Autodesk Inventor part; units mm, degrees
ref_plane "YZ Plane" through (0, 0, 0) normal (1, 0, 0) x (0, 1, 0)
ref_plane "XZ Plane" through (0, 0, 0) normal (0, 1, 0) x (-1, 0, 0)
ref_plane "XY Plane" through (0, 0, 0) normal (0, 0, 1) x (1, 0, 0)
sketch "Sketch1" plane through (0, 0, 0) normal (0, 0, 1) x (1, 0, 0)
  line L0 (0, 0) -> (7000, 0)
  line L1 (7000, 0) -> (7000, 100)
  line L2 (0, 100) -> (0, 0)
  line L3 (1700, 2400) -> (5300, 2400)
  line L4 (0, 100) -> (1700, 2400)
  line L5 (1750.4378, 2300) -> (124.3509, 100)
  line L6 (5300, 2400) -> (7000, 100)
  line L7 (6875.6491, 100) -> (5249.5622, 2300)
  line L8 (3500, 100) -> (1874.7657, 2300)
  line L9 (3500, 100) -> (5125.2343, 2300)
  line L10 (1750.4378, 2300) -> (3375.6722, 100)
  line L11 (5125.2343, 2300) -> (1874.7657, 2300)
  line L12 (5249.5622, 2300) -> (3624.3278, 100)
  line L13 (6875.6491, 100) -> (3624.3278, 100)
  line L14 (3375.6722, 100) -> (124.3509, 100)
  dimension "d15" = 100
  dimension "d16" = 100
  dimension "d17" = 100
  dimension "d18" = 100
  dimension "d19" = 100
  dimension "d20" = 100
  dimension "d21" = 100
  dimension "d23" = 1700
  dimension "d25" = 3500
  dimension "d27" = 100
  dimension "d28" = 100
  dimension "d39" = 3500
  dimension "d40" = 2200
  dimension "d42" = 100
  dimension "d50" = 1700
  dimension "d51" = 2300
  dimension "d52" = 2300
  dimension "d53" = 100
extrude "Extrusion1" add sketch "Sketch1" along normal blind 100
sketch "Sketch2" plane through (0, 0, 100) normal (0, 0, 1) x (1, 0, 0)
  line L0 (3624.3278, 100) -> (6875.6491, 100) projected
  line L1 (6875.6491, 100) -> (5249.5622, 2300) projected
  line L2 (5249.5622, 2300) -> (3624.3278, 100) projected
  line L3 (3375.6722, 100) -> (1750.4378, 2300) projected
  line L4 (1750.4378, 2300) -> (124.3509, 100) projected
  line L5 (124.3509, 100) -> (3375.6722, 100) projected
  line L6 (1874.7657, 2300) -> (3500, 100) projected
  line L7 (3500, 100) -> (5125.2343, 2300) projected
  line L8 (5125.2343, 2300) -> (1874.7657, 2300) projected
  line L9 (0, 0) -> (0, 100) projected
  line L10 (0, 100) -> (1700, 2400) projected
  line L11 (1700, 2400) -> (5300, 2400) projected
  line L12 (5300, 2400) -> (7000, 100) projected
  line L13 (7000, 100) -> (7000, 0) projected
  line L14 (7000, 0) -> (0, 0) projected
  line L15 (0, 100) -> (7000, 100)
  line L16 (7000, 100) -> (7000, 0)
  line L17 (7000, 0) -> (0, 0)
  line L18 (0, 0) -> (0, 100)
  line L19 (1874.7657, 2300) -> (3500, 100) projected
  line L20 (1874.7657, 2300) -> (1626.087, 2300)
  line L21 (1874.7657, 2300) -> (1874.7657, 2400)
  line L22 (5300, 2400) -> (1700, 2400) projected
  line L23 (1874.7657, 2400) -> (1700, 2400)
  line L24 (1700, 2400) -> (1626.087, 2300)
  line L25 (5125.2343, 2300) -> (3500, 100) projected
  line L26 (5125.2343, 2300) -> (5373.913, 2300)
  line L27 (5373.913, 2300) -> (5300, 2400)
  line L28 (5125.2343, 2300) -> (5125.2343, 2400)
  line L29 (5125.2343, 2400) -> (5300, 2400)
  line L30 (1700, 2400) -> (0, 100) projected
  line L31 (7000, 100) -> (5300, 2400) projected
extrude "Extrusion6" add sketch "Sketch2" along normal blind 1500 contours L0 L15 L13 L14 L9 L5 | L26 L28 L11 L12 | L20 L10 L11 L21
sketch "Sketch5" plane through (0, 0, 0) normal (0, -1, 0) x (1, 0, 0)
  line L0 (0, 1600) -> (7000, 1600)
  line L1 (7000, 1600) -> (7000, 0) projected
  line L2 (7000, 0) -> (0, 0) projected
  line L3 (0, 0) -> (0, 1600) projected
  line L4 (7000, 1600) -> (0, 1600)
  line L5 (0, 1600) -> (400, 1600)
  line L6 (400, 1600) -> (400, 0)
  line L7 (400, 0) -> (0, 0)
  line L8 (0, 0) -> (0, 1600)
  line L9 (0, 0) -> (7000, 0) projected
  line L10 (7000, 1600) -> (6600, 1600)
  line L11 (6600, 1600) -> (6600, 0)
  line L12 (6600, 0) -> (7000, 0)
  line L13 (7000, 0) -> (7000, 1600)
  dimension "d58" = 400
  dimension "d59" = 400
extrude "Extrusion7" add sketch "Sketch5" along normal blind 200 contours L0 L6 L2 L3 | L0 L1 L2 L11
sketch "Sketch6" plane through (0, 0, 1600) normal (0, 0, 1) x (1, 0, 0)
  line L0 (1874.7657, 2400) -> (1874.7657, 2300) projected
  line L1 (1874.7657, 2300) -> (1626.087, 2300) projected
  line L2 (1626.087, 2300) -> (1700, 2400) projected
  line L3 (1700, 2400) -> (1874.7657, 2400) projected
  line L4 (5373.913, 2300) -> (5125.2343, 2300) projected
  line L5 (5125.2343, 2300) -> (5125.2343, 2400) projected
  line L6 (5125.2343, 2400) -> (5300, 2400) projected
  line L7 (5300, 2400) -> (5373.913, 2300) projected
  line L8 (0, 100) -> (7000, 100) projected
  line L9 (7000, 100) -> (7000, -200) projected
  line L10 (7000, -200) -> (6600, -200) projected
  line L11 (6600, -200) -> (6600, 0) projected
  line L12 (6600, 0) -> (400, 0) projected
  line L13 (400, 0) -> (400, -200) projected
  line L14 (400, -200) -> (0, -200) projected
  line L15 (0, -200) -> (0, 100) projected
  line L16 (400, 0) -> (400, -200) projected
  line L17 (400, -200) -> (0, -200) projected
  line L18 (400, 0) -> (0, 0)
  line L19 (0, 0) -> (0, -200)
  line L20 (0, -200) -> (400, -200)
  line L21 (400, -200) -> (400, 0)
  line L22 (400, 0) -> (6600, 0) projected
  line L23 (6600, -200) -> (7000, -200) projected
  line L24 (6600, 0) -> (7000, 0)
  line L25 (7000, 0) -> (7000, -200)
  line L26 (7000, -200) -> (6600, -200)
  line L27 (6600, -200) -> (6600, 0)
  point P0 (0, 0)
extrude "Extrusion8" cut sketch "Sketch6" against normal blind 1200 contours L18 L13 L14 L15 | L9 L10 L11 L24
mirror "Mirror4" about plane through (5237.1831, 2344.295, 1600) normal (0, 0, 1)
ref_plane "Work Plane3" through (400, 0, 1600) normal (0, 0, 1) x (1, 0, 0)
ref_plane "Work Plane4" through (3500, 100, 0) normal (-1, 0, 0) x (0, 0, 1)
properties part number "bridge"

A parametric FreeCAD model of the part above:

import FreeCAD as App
import Part
import Sketcher

V = App.Vector
Q = App.Units.Quantity

doc = App.newDocument("Part")
body = doc.addObject("PartDesign::Body", "Body")

sketch1 = doc.addObject("Sketcher::SketchObject", "Sketch")
body.addObject(sketch1)
sketch1.AttachmentSupport = (doc.XY_Plane, [""])
sketch1.MapMode = "FlatFace"
sketch1.addGeometry([
    Part.LineSegment(V(0, 100, 0), V(0, 0, 0)),
    Part.LineSegment(V(0, 0, 0), V(7000, 0, 0)),
    Part.LineSegment(V(7000, 0, 0), V(7000, 100, 0)),
    Part.LineSegment(V(7000, 100, 0), V(5300, 2400, 0)),
    Part.LineSegment(V(5300, 2400, 0), V(1700, 2400, 0)),
    Part.LineSegment(V(1700, 2400, 0), V(0, 100, 0)),
    Part.LineSegment(V(124.3509, 100, 0), V(1750.4378, 2300, 0)),
    Part.LineSegment(V(1750.4378, 2300, 0), V(3375.6722, 100, 0)),
    Part.LineSegment(V(3375.6722, 100, 0), V(124.3509, 100, 0)),
    Part.LineSegment(V(5125.2343, 2300, 0), V(3500, 100, 0)),
    Part.LineSegment(V(3500, 100, 0), V(1874.7657, 2300, 0)),
    Part.LineSegment(V(1874.7657, 2300, 0), V(5125.2343, 2300, 0)),
    Part.LineSegment(V(5249.5622, 2300, 0), V(6875.6491, 100, 0)),
    Part.LineSegment(V(6875.6491, 100, 0), V(3624.3278, 100, 0)),
    Part.LineSegment(V(3624.3278, 100, 0), V(5249.5622, 2300, 0)),
], False)
sketch1.addConstraint([
    Sketcher.Constraint("Coincident", 0, 2, 1, 1),
    Sketcher.Constraint("Coincident", 1, 2, 2, 1),
    Sketcher.Constraint("Coincident", 2, 2, 3, 1),
    Sketcher.Constraint("Coincident", 3, 2, 4, 1),
    Sketcher.Constraint("Coincident", 4, 2, 5, 1),
    Sketcher.Constraint("Coincident", 5, 2, 0, 1),
    Sketcher.Constraint("Coincident", 6, 2, 7, 1),
    Sketcher.Constraint("Coincident", 7, 2, 8, 1),
    Sketcher.Constraint("Coincident", 8, 2, 6, 1),
    Sketcher.Constraint("Coincident", 9, 2, 10, 1),
    Sketcher.Constraint("Coincident", 10, 2, 11, 1),
    Sketcher.Constraint("Coincident", 11, 2, 9, 1),
    Sketcher.Constraint("Coincident", 12, 2, 13, 1),
    Sketcher.Constraint("Coincident", 13, 2, 14, 1),
    Sketcher.Constraint("Coincident", 14, 2, 12, 1),
    Sketcher.Constraint("Vertical", 0),
    Sketcher.Constraint("Horizontal", 1),
    Sketcher.Constraint("Vertical", 2),
    Sketcher.Constraint("Horizontal", 4),
    Sketcher.Constraint("Horizontal", 8),
    Sketcher.Constraint("Horizontal", 11),
    Sketcher.Constraint("Horizontal", 13),
    Sketcher.Constraint("Coincident", 0, 2, -1, 1),
    Sketcher.Constraint("DistanceY", 0, 2, 0, 1, Q("100 mm")),
    Sketcher.Constraint("DistanceY", 2, 1, 2, 2, Q("100 mm")),
    Sketcher.Constraint("DistanceX", -1, 1, 4, 2, Q("1700 mm")),
    Sketcher.Constraint("DistanceY", -1, 1, 6, 2, Q("2300 mm")),
    Sketcher.Constraint("DistanceY", -1, 1, 7, 2, Q("100 mm")),
    Sketcher.Constraint("DistanceX", -1, 1, 9, 2, Q("3500 mm")),
    Sketcher.Constraint("DistanceY", -1, 1, 9, 2, Q("100 mm")),
    Sketcher.Constraint("DistanceY", -1, 1, 10, 2, Q("2300 mm")),
    Sketcher.Constraint("DistanceY", -1, 1, 12, 2, Q("100 mm")),
    Sketcher.Constraint("DistanceY", -1, 1, 14, 2, Q("2300 mm")),
    Sketcher.Constraint("DistanceX", 3, 2, 2, 2, Q("1700 mm")),
    Sketcher.Constraint("DistanceY", 2, 2, 3, 2, Q("2300 mm")),
    Sketcher.Constraint("DistanceX", 1, 1, 1, 2, Q("7000 mm")),
    Sketcher.Constraint("Distance", 6, Q("2735.719 mm")),
    Sketcher.Constraint("Distance", 12, Q("2735.719 mm")),
    Sketcher.Constraint("DistanceX", 8, 2, 8, 1, Q("3251.3213 mm")),
    Sketcher.Constraint("DistanceX", 11, 1, 11, 2, Q("3250.4686 mm")),
    Sketcher.Constraint("DistanceX", 13, 2, 13, 1, Q("3251.3213 mm")),
    Sketcher.Constraint("DistanceX", -1, 1, 8, 2, Q("124.351 mm")),
    Sketcher.Constraint("DistanceX", -1, 1, 12, 2, Q("6875.649 mm")),
    Sketcher.Constraint("DistanceX", 6, 2, 10, 2, Q("124.328 mm")),
])
pad1 = doc.addObject("PartDesign::Pad", "Pad")
body.addObject(pad1)
pad1.Profile = sketch1
pad1.Length = 100

sketch2 = doc.addObject("Sketcher::SketchObject", "Sketch001")
body.addObject(sketch2)
sketch2.AttachmentSupport = (doc.XY_Plane, [""])
sketch2.MapMode = "FlatFace"
sketch2.AttachmentOffset = App.Placement(V(0, 0, 100), App.Rotation())
sketch2.addGeometry([
    Part.LineSegment(V(7000, 100, 0), V(0, 100, 0)),
    Part.LineSegment(V(0, 100, 0), V(0, 0, 0)),
    Part.LineSegment(V(0, 0, 0), V(7000, 0, 0)),
    Part.LineSegment(V(7000, 0, 0), V(7000, 100, 0)),
    Part.LineSegment(V(5125, 2300, 0), V(5374, 2300, 0)),
    Part.LineSegment(V(5374, 2300, 0), V(5300, 2400, 0)),
    Part.LineSegment(V(5300, 2400, 0), V(5125, 2400, 0)),
    Part.LineSegment(V(5125, 2400, 0), V(5125, 2300, 0)),
    Part.LineSegment(V(1626, 2300, 0), V(1875, 2300, 0)),
    Part.LineSegment(V(1875, 2300, 0), V(1875, 2400, 0)),
    Part.LineSegment(V(1875, 2400, 0), V(1700, 2400, 0)),
    Part.LineSegment(V(1700, 2400, 0), V(1626, 2300, 0)),
], False)
sketch2.addConstraint([
    Sketcher.Constraint("Coincident", 0, 2, 1, 1),
    Sketcher.Constraint("Coincident", 1, 2, 2, 1),
    Sketcher.Constraint("Coincident", 2, 2, 3, 1),
    Sketcher.Constraint("Coincident", 3, 2, 0, 1),
    Sketcher.Constraint("Coincident", 4, 2, 5, 1),
    Sketcher.Constraint("Coincident", 5, 2, 6, 1),
    Sketcher.Constraint("Coincident", 6, 2, 7, 1),
    Sketcher.Constraint("Coincident", 7, 2, 4, 1),
    Sketcher.Constraint("Coincident", 8, 2, 9, 1),
    Sketcher.Constraint("Coincident", 9, 2, 10, 1),
    Sketcher.Constraint("Coincident", 10, 2, 11, 1),
    Sketcher.Constraint("Coincident", 11, 2, 8, 1),
    Sketcher.Constraint("Horizontal", 0),
    Sketcher.Constraint("Vertical", 1),
    Sketcher.Constraint("Horizontal", 2),
    Sketcher.Constraint("Vertical", 3),
    Sketcher.Constraint("Horizontal", 4),
    Sketcher.Constraint("Horizontal", 6),
    Sketcher.Constraint("Vertical", 7),
    Sketcher.Constraint("Horizontal", 8),
    Sketcher.Constraint("Vertical", 9),
    Sketcher.Constraint("Horizontal", 10),
    Sketcher.Constraint("Coincident", 1, 2, -1, 1),
    Sketcher.Constraint("Horizontal", 7, 2, 8, 2),
    Sketcher.Constraint("Horizontal", 6, 2, 9, 2),
    Sketcher.Constraint("Equal", 4, 8),
    Sketcher.Constraint("Equal", 6, 10),
    Sketcher.Constraint("Equal", 3, 7),
    Sketcher.Constraint("DistanceX", 0, 2, 0, 1, Q("7000 mm")),
    Sketcher.Constraint("DistanceY", 1, 2, 1, 1, Q("100 mm")),
    Sketcher.Constraint("DistanceY", -1, 1, 4, 2, Q("2300 mm")),
    Sketcher.Constraint("DistanceX", -1, 1, 5, 2, Q("5300 mm")),
    Sketcher.Constraint("DistanceX", -1, 1, 10, 2, Q("1700 mm")),
    Sketcher.Constraint("Angle", 5, Q("126.4692 deg")),
    Sketcher.Constraint("DistanceX", 4, 1, 4, 2, Q("248.6787 mm")),
])
pad2 = doc.addObject("PartDesign::Pad", "Pad001")
body.addObject(pad2)
pad2.Profile = sketch2
pad2.Length = 1500

sketch3 = doc.addObject("Sketcher::SketchObject", "Sketch002")
body.addObject(sketch3)
sketch3.AttachmentSupport = (doc.XZ_Plane, [""])
sketch3.MapMode = "FlatFace"
sketch3.addGeometry([
    Part.LineSegment(V(400, 1600, 0), V(0, 1600, 0)),
    Part.LineSegment(V(0, 1600, 0), V(0, 0, 0)),
    Part.LineSegment(V(0, 0, 0), V(400, 0, 0)),
    Part.LineSegment(V(400, 0, 0), V(400, 1600, 0)),
    Part.LineSegment(V(7000, 1600, 0), V(6600, 1600, 0)),
    Part.LineSegment(V(6600, 1600, 0), V(6600, 0, 0)),
    Part.LineSegment(V(6600, 0, 0), V(7000, 0, 0)),
    Part.LineSegment(V(7000, 0, 0), V(7000, 1600, 0)),
], False)
sketch3.addConstraint([
    Sketcher.Constraint("Coincident", 0, 2, 1, 1),
    Sketcher.Constraint("Coincident", 1, 2, 2, 1),
    Sketcher.Constraint("Coincident", 2, 2, 3, 1),
    Sketcher.Constraint("Coincident", 3, 2, 0, 1),
    Sketcher.Constraint("Coincident", 4, 2, 5, 1),
    Sketcher.Constraint("Coincident", 5, 2, 6, 1),
    Sketcher.Constraint("Coincident", 6, 2, 7, 1),
    Sketcher.Constraint("Coincident", 7, 2, 4, 1),
    Sketcher.Constraint("Horizontal", 0),
    Sketcher.Constraint("Vertical", 1),
    Sketcher.Constraint("Horizontal", 2),
    Sketcher.Constraint("Vertical", 3),
    Sketcher.Constraint("Horizontal", 4),
    Sketcher.Constraint("Vertical", 5),
    Sketcher.Constraint("Horizontal", 6),
    Sketcher.Constraint("Vertical", 7),
    Sketcher.Constraint("Coincident", 1, 2, -1, 1),
    Sketcher.Constraint("PointOnObject", 5, 2, -1),
    Sketcher.Constraint("Horizontal", 3, 2, 4, 2),
    Sketcher.Constraint("Equal", 2, 4),
    Sketcher.Constraint("DistanceX", 0, 2, 0, 1, Q("400 mm")),
    Sketcher.Constraint("DistanceY", 1, 2, 1, 1, Q("1600 mm")),
    Sketcher.Constraint("DistanceX", -1, 1, 4, 2, Q("6600 mm")),
])
pad3 = doc.addObject("PartDesign::Pad", "Pad002")
body.addObject(pad3)
pad3.Profile = sketch3
pad3.Length = 200

sketch4 = doc.addObject("Sketcher::SketchObject", "Sketch003")
body.addObject(sketch4)
sketch4.AttachmentSupport = (doc.XY_Plane, [""])
sketch4.MapMode = "FlatFace"
sketch4.AttachmentOffset = App.Placement(V(0, 0, 1600), App.Rotation())
sketch4.addGeometry([
    Part.LineSegment(V(400, 0, 0), V(0, 0, 0)),
    Part.LineSegment(V(0, 0, 0), V(0, -200, 0)),
    Part.LineSegment(V(0, -200, 0), V(400, -200, 0)),
    Part.LineSegment(V(400, -200, 0), V(400, 0, 0)),
    Part.LineSegment(V(7000, -200, 0), V(7000, 0, 0)),
    Part.LineSegment(V(7000, 0, 0), V(6600, 0, 0)),
    Part.LineSegment(V(6600, 0, 0), V(6600, -200, 0)),
    Part.LineSegment(V(6600, -200, 0), V(7000, -200, 0)),
], False)
sketch4.addConstraint([
    Sketcher.Constraint("Coincident", 0, 2, 1, 1),
    Sketcher.Constraint("Coincident", 1, 2, 2, 1),
    Sketcher.Constraint("Coincident", 2, 2, 3, 1),
    Sketcher.Constraint("Coincident", 3, 2, 0, 1),
    Sketcher.Constraint("Coincident", 4, 2, 5, 1),
    Sketcher.Constraint("Coincident", 5, 2, 6, 1),
    Sketcher.Constraint("Coincident", 6, 2, 7, 1),
    Sketcher.Constraint("Coincident", 7, 2, 4, 1),
    Sketcher.Constraint("Horizontal", 0),
    Sketcher.Constraint("Vertical", 1),
    Sketcher.Constraint("Horizontal", 2),
    Sketcher.Constraint("Vertical", 3),
    Sketcher.Constraint("Vertical", 4),
    Sketcher.Constraint("Horizontal", 5),
    Sketcher.Constraint("Vertical", 6),
    Sketcher.Constraint("Horizontal", 7),
    Sketcher.Constraint("Coincident", 0, 2, -1, 1),
    Sketcher.Constraint("PointOnObject", 4, 2, -1),
    Sketcher.Constraint("Horizontal", 2, 2, 6, 2),
    Sketcher.Constraint("Equal", 2, 5),
    Sketcher.Constraint("DistanceX", 0, 2, 0, 1, Q("400 mm")),
    Sketcher.Constraint("DistanceY", 1, 2, 1, 1, Q("200 mm")),
    Sketcher.Constraint("DistanceX", -1, 1, 4, 2, Q("7000 mm")),
])
pocket1 = doc.addObject("PartDesign::Pocket", "Pocket")
body.addObject(pocket1)
pocket1.Profile = sketch4
pocket1.Length = 1200
doc.recompute()

datumplane = doc.addObject("PartDesign::Plane", "DatumPlane")
body.addObject(datumplane)
datumplane.AttachmentSupport = (doc.XY_Plane, [""])
datumplane.MapMode = "FlatFace"
datumplane.AttachmentOffset = App.Placement(V(0, 0, 1600), App.Rotation())
mirrored = doc.addObject("PartDesign::Mirrored", "Mirrored")
body.addObject(mirrored)
mirrored.TransformMode = "Transform body"
mirrored.MirrorPlane = (datumplane, [""])
body.Tip = mirrored

doc.recompute()
